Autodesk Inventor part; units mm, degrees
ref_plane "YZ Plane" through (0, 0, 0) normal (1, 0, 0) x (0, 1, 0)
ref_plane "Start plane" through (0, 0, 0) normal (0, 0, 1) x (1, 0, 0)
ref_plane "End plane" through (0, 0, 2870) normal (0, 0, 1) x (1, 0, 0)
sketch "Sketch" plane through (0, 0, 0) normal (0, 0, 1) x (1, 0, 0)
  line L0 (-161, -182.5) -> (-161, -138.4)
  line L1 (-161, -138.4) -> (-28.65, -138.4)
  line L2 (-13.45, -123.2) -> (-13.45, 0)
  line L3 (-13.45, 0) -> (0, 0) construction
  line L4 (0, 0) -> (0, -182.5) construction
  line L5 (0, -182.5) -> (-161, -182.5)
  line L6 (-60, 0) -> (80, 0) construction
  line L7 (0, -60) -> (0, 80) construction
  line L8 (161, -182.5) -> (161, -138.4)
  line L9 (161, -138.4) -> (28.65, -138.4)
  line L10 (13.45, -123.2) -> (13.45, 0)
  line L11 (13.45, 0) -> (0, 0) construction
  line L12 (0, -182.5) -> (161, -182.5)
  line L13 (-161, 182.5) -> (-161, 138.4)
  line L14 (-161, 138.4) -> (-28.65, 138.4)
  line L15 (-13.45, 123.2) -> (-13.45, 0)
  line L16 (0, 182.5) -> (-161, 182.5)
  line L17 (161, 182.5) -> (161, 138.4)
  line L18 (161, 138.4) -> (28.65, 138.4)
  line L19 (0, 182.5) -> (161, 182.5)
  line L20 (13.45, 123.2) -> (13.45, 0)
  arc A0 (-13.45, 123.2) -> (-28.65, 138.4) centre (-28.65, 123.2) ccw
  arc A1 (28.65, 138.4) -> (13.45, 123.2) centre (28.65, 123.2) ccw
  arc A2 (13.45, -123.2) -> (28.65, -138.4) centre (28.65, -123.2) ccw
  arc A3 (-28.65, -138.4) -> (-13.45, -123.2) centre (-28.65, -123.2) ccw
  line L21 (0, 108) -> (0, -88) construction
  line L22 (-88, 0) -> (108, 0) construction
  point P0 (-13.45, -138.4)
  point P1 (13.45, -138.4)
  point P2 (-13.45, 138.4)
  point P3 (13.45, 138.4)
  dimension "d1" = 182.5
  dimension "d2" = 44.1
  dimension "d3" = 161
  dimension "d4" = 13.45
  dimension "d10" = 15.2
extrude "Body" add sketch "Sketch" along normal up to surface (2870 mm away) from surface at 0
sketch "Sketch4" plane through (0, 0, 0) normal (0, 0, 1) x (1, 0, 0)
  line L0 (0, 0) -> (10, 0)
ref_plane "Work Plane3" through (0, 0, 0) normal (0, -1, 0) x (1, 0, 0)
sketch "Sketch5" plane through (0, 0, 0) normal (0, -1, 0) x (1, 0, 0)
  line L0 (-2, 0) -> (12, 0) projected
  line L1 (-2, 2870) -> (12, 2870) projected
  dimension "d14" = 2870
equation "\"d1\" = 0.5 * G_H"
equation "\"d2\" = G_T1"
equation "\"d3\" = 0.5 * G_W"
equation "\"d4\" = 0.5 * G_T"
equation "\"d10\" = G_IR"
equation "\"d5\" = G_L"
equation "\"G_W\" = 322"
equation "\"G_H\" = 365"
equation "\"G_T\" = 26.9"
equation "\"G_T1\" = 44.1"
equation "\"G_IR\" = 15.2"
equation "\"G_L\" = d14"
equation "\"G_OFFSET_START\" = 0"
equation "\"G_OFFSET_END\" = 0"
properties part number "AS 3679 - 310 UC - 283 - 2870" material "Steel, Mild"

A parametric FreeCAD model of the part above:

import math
import FreeCAD as App
import Part
import Sketcher
Q = App.Units.Quantity

doc = App.newDocument("Part")
body = doc.addObject("PartDesign::Body", "Body")

sketch1 = doc.addObject("Sketcher::SketchObject", "Sketch")
body.addObject(sketch1)
sketch1.AttachmentSupport = (doc.XY_Plane, [""])
sketch1.MapMode = "FlatFace"
sketch1.addGeometry([
    Part.LineSegment(App.Vector(-161, -138, 0), App.Vector(-161, -182, 0)),
    Part.LineSegment(App.Vector(-161, -182, 0), App.Vector(161, -182, 0)),
    Part.LineSegment(App.Vector(161, -182, 0), App.Vector(161, -138, 0)),
    Part.LineSegment(App.Vector(161, -138, 0), App.Vector(29, -138, 0)),
    Part.ArcOfCircle(Part.Circle(App.Vector(29, -123, 0), App.Vector(0, 0, 1), 15), math.radians(180), math.radians(270)),
    Part.LineSegment(App.Vector(13, -123, 0), App.Vector(13, 123, 0)),
    Part.ArcOfCircle(Part.Circle(App.Vector(29, 123, 0), App.Vector(0, 0, 1), 15), math.radians(90), math.radians(180)),
    Part.LineSegment(App.Vector(29, 138, 0), App.Vector(161, 138, 0)),
    Part.LineSegment(App.Vector(161, 138, 0), App.Vector(161, 182, 0)),
    Part.LineSegment(App.Vector(161, 182, 0), App.Vector(-161, 182, 0)),
    Part.LineSegment(App.Vector(-161, 182, 0), App.Vector(-161, 138, 0)),
    Part.LineSegment(App.Vector(-161, 138, 0), App.Vector(-29, 138, 0)),
    Part.ArcOfCircle(Part.Circle(App.Vector(-29, 123, 0), App.Vector(0, 0, 1), 15), math.radians(0), math.radians(90)),
    Part.LineSegment(App.Vector(-13, 123, 0), App.Vector(-13, -123, 0)),
    Part.ArcOfCircle(Part.Circle(App.Vector(-29, -123, 0), App.Vector(0, 0, 1), 15), math.radians(-90), math.radians(0)),
    Part.LineSegment(App.Vector(-29, -138, 0), App.Vector(-161, -138, 0)),
], False)
sketch1.addConstraint([
    Sketcher.Constraint("Coincident", 0, 2, 1, 1),
    Sketcher.Constraint("Coincident", 1, 2, 2, 1),
    Sketcher.Constraint("Coincident", 2, 2, 3, 1),
    Sketcher.Constraint("Tangent", 3, 2, 4, 2),
    Sketcher.Constraint("Tangent", 4, 1, 5, 1),
    Sketcher.Constraint("Tangent", 5, 2, 6, 2),
    Sketcher.Constraint("Tangent", 6, 1, 7, 1),
    Sketcher.Constraint("Coincident", 7, 2, 8, 1),
    Sketcher.Constraint("Coincident", 8, 2, 9, 1),
    Sketcher.Constraint("Coincident", 9, 2, 10, 1),
    Sketcher.Constraint("Coincident", 10, 2, 11, 1),
    Sketcher.Constraint("Tangent", 11, 2, 12, 2),
    Sketcher.Constraint("Tangent", 12, 1, 13, 1),
    Sketcher.Constraint("Tangent", 13, 2, 14, 2),
    Sketcher.Constraint("Tangent", 14, 1, 15, 1),
    Sketcher.Constraint("Coincident", 15, 2, 0, 1),
    Sketcher.Constraint("Vertical", 0),
    Sketcher.Constraint("Horizontal", 1),
    Sketcher.Constraint("Vertical", 2),
    Sketcher.Constraint("Horizontal", 3),
    Sketcher.Constraint("Vertical", 5),
    Sketcher.Constraint("Horizontal", 7),
    Sketcher.Constraint("Vertical", 8),
    Sketcher.Constraint("Horizontal", 9),
    Sketcher.Constraint("Vertical", 10),
    Sketcher.Constraint("Horizontal", 11),
    Sketcher.Constraint("Vertical", 13),
    Sketcher.Constraint("Horizontal", 15),
    Sketcher.Constraint("Equal", 4, 6),
    Sketcher.Constraint("Equal", 6, 12),
    Sketcher.Constraint("Equal", 12, 14),
    Sketcher.Constraint("Symmetric", 4, 3, 12, 3, -1, 1),
    Sketcher.Constraint("Symmetric", 0, 2, 8, 2, -1, 1),
    Sketcher.Constraint("Symmetric", 7, 2, 10, 2, -2),
    Sketcher.Constraint("Symmetric", 2, 2, 15, 2, -2),
    Sketcher.Constraint("Radius", 4, Q("15.2 mm")),
    Sketcher.Constraint("DistanceY", 0, 2, 0, 1, Q("44.1 mm")),
    Sketcher.Constraint("DistanceX", 0, 2, -1, 1, Q("161 mm")),
    Sketcher.Constraint("DistanceY", 0, 2, -1, 1, Q("182.5 mm")),
    Sketcher.Constraint("DistanceX", -1, 1, 4, 1, Q("13.45 mm")),
])
pad1 = doc.addObject("PartDesign::Pad", "Pad")
body.addObject(pad1)
pad1.Profile = sketch1
pad1.Length = 2870

doc.recompute()
